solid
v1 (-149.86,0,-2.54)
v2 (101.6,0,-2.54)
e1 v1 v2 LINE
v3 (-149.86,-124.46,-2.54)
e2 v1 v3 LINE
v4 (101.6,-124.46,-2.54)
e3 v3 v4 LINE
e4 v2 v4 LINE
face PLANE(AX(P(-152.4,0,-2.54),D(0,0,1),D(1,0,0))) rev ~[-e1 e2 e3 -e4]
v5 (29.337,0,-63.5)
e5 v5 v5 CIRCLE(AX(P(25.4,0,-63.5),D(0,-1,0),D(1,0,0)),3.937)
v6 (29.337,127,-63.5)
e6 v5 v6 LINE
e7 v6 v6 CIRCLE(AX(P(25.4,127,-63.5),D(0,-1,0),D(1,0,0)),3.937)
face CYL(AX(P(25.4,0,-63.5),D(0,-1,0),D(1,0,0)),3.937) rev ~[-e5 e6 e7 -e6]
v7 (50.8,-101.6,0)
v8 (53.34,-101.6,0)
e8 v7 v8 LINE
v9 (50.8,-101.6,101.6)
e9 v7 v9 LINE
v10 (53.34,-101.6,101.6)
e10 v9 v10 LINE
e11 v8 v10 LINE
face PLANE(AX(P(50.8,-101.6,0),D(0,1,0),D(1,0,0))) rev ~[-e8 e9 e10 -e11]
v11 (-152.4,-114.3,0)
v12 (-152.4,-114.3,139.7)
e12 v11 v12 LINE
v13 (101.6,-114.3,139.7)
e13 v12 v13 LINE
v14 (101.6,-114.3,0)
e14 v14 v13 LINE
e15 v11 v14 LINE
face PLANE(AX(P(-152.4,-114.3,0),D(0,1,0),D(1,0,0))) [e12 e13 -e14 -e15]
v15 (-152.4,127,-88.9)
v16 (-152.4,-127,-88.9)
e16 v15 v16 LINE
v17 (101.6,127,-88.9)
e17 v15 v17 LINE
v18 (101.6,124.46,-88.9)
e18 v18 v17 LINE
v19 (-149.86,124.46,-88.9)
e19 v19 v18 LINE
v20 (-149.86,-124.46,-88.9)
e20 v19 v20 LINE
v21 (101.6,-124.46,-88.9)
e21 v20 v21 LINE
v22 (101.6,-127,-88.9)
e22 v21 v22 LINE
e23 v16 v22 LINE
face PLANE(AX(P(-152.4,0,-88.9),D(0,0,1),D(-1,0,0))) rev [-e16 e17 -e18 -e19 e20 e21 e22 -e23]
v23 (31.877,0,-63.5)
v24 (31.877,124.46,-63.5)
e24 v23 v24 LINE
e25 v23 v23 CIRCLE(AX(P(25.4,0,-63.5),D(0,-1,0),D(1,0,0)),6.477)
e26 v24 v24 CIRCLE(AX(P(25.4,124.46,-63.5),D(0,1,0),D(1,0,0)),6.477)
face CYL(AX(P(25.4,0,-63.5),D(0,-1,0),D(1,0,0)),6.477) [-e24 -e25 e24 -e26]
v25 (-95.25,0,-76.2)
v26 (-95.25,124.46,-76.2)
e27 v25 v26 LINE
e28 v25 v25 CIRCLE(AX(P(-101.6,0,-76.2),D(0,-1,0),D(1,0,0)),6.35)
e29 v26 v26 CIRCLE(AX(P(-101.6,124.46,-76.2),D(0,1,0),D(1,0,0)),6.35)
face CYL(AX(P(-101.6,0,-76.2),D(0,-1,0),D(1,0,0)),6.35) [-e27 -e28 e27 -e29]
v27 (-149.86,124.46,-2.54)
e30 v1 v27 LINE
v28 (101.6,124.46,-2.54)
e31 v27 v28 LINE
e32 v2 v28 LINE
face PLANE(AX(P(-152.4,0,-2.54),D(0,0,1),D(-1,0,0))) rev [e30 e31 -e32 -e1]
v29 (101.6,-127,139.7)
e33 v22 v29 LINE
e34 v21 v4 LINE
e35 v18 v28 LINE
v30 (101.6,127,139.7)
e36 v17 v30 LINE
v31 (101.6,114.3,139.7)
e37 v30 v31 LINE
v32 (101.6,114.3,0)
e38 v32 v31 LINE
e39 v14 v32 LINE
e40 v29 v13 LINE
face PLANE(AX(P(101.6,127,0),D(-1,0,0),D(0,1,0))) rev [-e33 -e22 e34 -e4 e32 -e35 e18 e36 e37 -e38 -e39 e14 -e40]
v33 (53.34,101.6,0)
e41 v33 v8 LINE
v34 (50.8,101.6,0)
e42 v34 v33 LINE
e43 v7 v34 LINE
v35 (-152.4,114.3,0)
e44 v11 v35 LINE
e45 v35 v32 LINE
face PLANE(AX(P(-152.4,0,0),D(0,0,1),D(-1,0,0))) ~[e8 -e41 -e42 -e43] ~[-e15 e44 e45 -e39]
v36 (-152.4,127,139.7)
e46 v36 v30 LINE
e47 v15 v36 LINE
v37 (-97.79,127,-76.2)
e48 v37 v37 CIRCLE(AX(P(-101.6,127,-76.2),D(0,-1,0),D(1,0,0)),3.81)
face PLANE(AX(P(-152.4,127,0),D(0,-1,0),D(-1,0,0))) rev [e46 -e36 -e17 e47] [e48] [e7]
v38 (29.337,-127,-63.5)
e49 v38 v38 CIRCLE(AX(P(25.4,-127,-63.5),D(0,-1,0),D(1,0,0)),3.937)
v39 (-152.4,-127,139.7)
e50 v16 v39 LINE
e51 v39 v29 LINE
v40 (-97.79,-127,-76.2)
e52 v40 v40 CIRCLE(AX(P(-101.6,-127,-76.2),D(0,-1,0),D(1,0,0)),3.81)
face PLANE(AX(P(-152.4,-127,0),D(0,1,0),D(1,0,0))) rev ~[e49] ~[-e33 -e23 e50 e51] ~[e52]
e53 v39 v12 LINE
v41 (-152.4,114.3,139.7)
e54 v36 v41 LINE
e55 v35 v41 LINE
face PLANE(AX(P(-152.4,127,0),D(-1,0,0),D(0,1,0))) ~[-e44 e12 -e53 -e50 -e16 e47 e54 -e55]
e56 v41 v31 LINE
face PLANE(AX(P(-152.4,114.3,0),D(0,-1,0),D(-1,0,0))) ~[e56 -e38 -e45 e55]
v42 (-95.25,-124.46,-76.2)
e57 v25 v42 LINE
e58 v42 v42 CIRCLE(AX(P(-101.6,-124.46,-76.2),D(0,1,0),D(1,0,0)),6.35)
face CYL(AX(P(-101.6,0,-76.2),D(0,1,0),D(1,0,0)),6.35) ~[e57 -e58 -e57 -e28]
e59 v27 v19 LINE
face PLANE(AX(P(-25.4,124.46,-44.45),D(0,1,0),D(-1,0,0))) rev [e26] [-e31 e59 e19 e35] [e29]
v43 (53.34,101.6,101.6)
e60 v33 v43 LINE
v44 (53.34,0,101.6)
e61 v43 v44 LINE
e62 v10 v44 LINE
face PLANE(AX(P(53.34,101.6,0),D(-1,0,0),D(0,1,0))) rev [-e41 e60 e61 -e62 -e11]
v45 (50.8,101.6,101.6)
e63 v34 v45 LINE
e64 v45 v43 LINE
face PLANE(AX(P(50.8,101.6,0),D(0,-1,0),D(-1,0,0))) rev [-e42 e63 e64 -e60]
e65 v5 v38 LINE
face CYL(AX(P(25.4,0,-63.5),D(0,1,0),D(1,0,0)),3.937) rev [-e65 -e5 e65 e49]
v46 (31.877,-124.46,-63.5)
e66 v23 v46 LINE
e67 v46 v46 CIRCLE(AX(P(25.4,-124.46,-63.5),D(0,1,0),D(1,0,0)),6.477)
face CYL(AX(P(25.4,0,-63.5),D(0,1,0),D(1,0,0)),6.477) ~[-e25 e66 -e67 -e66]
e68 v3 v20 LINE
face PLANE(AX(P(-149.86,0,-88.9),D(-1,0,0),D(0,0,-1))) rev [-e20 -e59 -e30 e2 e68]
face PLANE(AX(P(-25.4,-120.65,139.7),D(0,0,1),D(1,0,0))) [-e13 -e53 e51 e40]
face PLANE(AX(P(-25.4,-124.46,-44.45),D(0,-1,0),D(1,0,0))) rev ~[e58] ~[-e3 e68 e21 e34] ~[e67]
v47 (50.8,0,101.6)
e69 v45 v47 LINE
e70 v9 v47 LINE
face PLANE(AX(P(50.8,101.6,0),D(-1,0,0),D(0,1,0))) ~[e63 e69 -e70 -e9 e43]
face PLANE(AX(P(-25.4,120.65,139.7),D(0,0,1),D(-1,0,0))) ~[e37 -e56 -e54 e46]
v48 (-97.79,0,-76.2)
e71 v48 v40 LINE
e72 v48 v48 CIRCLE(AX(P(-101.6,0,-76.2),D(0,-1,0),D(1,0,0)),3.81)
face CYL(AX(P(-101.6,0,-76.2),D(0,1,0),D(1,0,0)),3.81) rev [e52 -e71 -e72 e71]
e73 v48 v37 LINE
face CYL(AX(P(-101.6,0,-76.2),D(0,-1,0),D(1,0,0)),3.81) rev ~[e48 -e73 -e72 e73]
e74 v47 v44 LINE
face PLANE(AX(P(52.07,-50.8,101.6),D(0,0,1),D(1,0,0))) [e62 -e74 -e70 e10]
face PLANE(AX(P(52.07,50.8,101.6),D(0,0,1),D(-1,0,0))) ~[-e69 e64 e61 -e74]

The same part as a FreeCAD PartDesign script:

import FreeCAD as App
import Part
import Sketcher
Q = App.Units.Quantity


def faces_at(feature, points):
    """Names of the faces that lie closest to the given points."""
    faces = feature.Shape.Faces
    near = lambda p: min(range(len(faces)), key=lambda i: faces[i].distToShape(Part.Vertex(*p))[0])
    return sorted({f"Face{near(p) + 1}" for p in points})

doc = App.newDocument("Part")
body = doc.addObject("PartDesign::Body", "Body")

# Sketch on XZ plane
sketch1 = body.newObject("Sketcher::SketchObject", "Sketch")
sketch1.AttachmentSupport = (doc.getObject("XZ_Plane"), [""])
sketch1.MapMode = "FlatFace"
sketch1.addGeometry([
    Part.LineSegment(App.Vector(-152.4, 0, 0), App.Vector(-152.4, -88.9, 0)),  # 0
    Part.LineSegment(App.Vector(-152.4, -88.9, 0), App.Vector(101.6, -88.9, 0)),  # 1
    Part.LineSegment(App.Vector(101.6, -88.9, 0), App.Vector(101.6, 0, 0)),  # 2
    Part.LineSegment(App.Vector(101.6, 0, 0), App.Vector(-152.4, 0, 0)),  # 3
    Part.Circle(App.Vector(-101.6, -76.2, 0), App.Vector(0, 0, 1), 3.8),  # 4
    Part.Circle(App.Vector(25.4, -63.5, 0), App.Vector(0, 0, 1), 3.9),  # 5
], False)
sketch1.addConstraint([
    Sketcher.Constraint("Coincident", 0, 2, 1, 1),
    Sketcher.Constraint("Coincident", 1, 2, 2, 1),
    Sketcher.Constraint("Coincident", 2, 2, 3, 1),
    Sketcher.Constraint("Coincident", 3, 2, 0, 1),
    Sketcher.Constraint("Vertical", 0),
    Sketcher.Constraint("Horizontal", 1),
    Sketcher.Constraint("Vertical", 2),
    Sketcher.Constraint("Horizontal", 3),
    Sketcher.Constraint("PointOnObject", 2, 2, -1),
    Sketcher.Constraint("Diameter", 4, Q("0.3 in")),
    Sketcher.Constraint("Diameter", 5, Q("0.31 in")),
    Sketcher.Constraint("DistanceX", 1, 1, 1, 2, Q("10 in")),
    Sketcher.Constraint("DistanceY", 0, 2, 0, 1, Q("3.5 in")),
    Sketcher.Constraint("DistanceX", 4, 3, -1, 1, Q("4 in")),
    Sketcher.Constraint("DistanceY", 4, 3, -1, 1, Q("3 in")),
    Sketcher.Constraint("DistanceX", -1, 1, 5, 3, Q("1 in")),
    Sketcher.Constraint("DistanceX", 0, 2, -1, 1, Q("6 in")),
    Sketcher.Constraint("DistanceY", 0, 2, 5, 3, Q("1 in")),
])
pad1 = body.newObject("PartDesign::Pad", "Pad")
pad1.Profile = sketch1
pad1.Length = Q("5 in")
doc.recompute()

thickness = body.newObject("PartDesign::Thickness", "Thickness")
thickness.Base = (pad1, faces_at(pad1, [(-25.4, 0, -44.45), (-25.4, -63.5, -88.9), (101.6, -63.5, -44.45)]))
thickness.Value = Q("0.1 in")
thickness.Reversed = True
thickness.Join = "Arc"

# Sketch on XY plane
sketch2 = body.newObject("Sketcher::SketchObject", "Sketch001")
sketch2.AttachmentSupport = (doc.getObject("XY_Plane"), [""])
sketch2.MapMode = "FlatFace"
sketch2.addGeometry([
    Part.LineSegment(App.Vector(50.8, 0, 0), App.Vector(50.8, -101.6, 0)),
    Part.LineSegment(App.Vector(50.8, -101.6, 0), App.Vector(53.3, -101.6, 0)),
    Part.LineSegment(App.Vector(53.3, -101.6, 0), App.Vector(53.3, 0, 0)),
    Part.LineSegment(App.Vector(53.3, 0, 0), App.Vector(50.8, 0, 0)),
], False)
sketch2.addConstraint([
    Sketcher.Constraint("Coincident", 0, 2, 1, 1),
    Sketcher.Constraint("Coincident", 1, 2, 2, 1),
    Sketcher.Constraint("Coincident", 2, 2, 3, 1),
    Sketcher.Constraint("Coincident", 3, 2, 0, 1),
    Sketcher.Constraint("Vertical", 0),
    Sketcher.Constraint("Horizontal", 1),
    Sketcher.Constraint("Vertical", 2),
    Sketcher.Constraint("Horizontal", 3),
    Sketcher.Constraint("PointOnObject", 2, 2, -1),
    Sketcher.Constraint("DistanceY", 0, 2, 0, 1, Q("4 in")),
    Sketcher.Constraint("DistanceX", 1, 1, 1, 2, Q("0.1 in")),
    Sketcher.Constraint("DistanceX", -1, 1, 0, 2, Q("2 in")),
])
pad2 = body.newObject("PartDesign::Pad", "Pad001")
pad2.Profile = sketch2
pad2.Length = Q("4 in")

# Sketch on XY plane
sketch3 = body.newObject("Sketcher::SketchObject", "Sketch002")
sketch3.AttachmentSupport = (doc.getObject("XY_Plane"), [""])
sketch3.MapMode = "FlatFace"
sketch3.addGeometry([
    Part.LineSegment(App.Vector(-152, -114, 0), App.Vector(-152, -127, 0)),
    Part.LineSegment(App.Vector(-152, -127, 0), App.Vector(102, -127, 0)),
    Part.LineSegment(App.Vector(102, -127, 0), App.Vector(102, -114, 0)),
    Part.LineSegment(App.Vector(102, -114, 0), App.Vector(-152, -114, 0)),
], False)
sketch3.addConstraint([
    Sketcher.Constraint("Coincident", 0, 2, 1, 1),
    Sketcher.Constraint("Coincident", 1, 2, 2, 1),
    Sketcher.Constraint("Coincident", 2, 2, 3, 1),
    Sketcher.Constraint("Coincident", 3, 2, 0, 1),
    Sketcher.Constraint("Vertical", 0),
    Sketcher.Constraint("Horizontal", 1),
    Sketcher.Constraint("Vertical", 2),
    Sketcher.Constraint("Horizontal", 3),
    Sketcher.Constraint("DistanceX", 1, 1, 1, 2, Q("10 in")),
    Sketcher.Constraint("DistanceY", 0, 2, 0, 1, Q("0.5 in")),
    Sketcher.Constraint("DistanceX", 0, 2, -1, 1, Q("6 in")),
    Sketcher.Constraint("DistanceY", 0, 2, -1, 1, Q("5 in")),
])
pad3 = body.newObject("PartDesign::Pad", "Pad002")
pad3.Profile = sketch3
pad3.Length = Q("5.5 in")
body2 = doc.addObject("PartDesign::Body", "Body001")
doc.recompute()

body2.BaseFeature = body
doc.recompute()

mirroring = doc.addObject("Part::Mirroring", "Mirroring")
mirroring.Source = body
mirroring.Base = App.Vector(0, 0, 0)
mirroring.Normal = App.Vector(0, -1, 0)
body3 = doc.addObject("PartDesign::Body", "Body002")
body3.BaseFeature = mirroring
boolean = body2.newObject("PartDesign::Boolean", "Boolean")
boolean.Type = "Fuse"
boolean.addObjects([body3])
doc.recompute()
mirroring.Visibility = False

doc.recompute()
